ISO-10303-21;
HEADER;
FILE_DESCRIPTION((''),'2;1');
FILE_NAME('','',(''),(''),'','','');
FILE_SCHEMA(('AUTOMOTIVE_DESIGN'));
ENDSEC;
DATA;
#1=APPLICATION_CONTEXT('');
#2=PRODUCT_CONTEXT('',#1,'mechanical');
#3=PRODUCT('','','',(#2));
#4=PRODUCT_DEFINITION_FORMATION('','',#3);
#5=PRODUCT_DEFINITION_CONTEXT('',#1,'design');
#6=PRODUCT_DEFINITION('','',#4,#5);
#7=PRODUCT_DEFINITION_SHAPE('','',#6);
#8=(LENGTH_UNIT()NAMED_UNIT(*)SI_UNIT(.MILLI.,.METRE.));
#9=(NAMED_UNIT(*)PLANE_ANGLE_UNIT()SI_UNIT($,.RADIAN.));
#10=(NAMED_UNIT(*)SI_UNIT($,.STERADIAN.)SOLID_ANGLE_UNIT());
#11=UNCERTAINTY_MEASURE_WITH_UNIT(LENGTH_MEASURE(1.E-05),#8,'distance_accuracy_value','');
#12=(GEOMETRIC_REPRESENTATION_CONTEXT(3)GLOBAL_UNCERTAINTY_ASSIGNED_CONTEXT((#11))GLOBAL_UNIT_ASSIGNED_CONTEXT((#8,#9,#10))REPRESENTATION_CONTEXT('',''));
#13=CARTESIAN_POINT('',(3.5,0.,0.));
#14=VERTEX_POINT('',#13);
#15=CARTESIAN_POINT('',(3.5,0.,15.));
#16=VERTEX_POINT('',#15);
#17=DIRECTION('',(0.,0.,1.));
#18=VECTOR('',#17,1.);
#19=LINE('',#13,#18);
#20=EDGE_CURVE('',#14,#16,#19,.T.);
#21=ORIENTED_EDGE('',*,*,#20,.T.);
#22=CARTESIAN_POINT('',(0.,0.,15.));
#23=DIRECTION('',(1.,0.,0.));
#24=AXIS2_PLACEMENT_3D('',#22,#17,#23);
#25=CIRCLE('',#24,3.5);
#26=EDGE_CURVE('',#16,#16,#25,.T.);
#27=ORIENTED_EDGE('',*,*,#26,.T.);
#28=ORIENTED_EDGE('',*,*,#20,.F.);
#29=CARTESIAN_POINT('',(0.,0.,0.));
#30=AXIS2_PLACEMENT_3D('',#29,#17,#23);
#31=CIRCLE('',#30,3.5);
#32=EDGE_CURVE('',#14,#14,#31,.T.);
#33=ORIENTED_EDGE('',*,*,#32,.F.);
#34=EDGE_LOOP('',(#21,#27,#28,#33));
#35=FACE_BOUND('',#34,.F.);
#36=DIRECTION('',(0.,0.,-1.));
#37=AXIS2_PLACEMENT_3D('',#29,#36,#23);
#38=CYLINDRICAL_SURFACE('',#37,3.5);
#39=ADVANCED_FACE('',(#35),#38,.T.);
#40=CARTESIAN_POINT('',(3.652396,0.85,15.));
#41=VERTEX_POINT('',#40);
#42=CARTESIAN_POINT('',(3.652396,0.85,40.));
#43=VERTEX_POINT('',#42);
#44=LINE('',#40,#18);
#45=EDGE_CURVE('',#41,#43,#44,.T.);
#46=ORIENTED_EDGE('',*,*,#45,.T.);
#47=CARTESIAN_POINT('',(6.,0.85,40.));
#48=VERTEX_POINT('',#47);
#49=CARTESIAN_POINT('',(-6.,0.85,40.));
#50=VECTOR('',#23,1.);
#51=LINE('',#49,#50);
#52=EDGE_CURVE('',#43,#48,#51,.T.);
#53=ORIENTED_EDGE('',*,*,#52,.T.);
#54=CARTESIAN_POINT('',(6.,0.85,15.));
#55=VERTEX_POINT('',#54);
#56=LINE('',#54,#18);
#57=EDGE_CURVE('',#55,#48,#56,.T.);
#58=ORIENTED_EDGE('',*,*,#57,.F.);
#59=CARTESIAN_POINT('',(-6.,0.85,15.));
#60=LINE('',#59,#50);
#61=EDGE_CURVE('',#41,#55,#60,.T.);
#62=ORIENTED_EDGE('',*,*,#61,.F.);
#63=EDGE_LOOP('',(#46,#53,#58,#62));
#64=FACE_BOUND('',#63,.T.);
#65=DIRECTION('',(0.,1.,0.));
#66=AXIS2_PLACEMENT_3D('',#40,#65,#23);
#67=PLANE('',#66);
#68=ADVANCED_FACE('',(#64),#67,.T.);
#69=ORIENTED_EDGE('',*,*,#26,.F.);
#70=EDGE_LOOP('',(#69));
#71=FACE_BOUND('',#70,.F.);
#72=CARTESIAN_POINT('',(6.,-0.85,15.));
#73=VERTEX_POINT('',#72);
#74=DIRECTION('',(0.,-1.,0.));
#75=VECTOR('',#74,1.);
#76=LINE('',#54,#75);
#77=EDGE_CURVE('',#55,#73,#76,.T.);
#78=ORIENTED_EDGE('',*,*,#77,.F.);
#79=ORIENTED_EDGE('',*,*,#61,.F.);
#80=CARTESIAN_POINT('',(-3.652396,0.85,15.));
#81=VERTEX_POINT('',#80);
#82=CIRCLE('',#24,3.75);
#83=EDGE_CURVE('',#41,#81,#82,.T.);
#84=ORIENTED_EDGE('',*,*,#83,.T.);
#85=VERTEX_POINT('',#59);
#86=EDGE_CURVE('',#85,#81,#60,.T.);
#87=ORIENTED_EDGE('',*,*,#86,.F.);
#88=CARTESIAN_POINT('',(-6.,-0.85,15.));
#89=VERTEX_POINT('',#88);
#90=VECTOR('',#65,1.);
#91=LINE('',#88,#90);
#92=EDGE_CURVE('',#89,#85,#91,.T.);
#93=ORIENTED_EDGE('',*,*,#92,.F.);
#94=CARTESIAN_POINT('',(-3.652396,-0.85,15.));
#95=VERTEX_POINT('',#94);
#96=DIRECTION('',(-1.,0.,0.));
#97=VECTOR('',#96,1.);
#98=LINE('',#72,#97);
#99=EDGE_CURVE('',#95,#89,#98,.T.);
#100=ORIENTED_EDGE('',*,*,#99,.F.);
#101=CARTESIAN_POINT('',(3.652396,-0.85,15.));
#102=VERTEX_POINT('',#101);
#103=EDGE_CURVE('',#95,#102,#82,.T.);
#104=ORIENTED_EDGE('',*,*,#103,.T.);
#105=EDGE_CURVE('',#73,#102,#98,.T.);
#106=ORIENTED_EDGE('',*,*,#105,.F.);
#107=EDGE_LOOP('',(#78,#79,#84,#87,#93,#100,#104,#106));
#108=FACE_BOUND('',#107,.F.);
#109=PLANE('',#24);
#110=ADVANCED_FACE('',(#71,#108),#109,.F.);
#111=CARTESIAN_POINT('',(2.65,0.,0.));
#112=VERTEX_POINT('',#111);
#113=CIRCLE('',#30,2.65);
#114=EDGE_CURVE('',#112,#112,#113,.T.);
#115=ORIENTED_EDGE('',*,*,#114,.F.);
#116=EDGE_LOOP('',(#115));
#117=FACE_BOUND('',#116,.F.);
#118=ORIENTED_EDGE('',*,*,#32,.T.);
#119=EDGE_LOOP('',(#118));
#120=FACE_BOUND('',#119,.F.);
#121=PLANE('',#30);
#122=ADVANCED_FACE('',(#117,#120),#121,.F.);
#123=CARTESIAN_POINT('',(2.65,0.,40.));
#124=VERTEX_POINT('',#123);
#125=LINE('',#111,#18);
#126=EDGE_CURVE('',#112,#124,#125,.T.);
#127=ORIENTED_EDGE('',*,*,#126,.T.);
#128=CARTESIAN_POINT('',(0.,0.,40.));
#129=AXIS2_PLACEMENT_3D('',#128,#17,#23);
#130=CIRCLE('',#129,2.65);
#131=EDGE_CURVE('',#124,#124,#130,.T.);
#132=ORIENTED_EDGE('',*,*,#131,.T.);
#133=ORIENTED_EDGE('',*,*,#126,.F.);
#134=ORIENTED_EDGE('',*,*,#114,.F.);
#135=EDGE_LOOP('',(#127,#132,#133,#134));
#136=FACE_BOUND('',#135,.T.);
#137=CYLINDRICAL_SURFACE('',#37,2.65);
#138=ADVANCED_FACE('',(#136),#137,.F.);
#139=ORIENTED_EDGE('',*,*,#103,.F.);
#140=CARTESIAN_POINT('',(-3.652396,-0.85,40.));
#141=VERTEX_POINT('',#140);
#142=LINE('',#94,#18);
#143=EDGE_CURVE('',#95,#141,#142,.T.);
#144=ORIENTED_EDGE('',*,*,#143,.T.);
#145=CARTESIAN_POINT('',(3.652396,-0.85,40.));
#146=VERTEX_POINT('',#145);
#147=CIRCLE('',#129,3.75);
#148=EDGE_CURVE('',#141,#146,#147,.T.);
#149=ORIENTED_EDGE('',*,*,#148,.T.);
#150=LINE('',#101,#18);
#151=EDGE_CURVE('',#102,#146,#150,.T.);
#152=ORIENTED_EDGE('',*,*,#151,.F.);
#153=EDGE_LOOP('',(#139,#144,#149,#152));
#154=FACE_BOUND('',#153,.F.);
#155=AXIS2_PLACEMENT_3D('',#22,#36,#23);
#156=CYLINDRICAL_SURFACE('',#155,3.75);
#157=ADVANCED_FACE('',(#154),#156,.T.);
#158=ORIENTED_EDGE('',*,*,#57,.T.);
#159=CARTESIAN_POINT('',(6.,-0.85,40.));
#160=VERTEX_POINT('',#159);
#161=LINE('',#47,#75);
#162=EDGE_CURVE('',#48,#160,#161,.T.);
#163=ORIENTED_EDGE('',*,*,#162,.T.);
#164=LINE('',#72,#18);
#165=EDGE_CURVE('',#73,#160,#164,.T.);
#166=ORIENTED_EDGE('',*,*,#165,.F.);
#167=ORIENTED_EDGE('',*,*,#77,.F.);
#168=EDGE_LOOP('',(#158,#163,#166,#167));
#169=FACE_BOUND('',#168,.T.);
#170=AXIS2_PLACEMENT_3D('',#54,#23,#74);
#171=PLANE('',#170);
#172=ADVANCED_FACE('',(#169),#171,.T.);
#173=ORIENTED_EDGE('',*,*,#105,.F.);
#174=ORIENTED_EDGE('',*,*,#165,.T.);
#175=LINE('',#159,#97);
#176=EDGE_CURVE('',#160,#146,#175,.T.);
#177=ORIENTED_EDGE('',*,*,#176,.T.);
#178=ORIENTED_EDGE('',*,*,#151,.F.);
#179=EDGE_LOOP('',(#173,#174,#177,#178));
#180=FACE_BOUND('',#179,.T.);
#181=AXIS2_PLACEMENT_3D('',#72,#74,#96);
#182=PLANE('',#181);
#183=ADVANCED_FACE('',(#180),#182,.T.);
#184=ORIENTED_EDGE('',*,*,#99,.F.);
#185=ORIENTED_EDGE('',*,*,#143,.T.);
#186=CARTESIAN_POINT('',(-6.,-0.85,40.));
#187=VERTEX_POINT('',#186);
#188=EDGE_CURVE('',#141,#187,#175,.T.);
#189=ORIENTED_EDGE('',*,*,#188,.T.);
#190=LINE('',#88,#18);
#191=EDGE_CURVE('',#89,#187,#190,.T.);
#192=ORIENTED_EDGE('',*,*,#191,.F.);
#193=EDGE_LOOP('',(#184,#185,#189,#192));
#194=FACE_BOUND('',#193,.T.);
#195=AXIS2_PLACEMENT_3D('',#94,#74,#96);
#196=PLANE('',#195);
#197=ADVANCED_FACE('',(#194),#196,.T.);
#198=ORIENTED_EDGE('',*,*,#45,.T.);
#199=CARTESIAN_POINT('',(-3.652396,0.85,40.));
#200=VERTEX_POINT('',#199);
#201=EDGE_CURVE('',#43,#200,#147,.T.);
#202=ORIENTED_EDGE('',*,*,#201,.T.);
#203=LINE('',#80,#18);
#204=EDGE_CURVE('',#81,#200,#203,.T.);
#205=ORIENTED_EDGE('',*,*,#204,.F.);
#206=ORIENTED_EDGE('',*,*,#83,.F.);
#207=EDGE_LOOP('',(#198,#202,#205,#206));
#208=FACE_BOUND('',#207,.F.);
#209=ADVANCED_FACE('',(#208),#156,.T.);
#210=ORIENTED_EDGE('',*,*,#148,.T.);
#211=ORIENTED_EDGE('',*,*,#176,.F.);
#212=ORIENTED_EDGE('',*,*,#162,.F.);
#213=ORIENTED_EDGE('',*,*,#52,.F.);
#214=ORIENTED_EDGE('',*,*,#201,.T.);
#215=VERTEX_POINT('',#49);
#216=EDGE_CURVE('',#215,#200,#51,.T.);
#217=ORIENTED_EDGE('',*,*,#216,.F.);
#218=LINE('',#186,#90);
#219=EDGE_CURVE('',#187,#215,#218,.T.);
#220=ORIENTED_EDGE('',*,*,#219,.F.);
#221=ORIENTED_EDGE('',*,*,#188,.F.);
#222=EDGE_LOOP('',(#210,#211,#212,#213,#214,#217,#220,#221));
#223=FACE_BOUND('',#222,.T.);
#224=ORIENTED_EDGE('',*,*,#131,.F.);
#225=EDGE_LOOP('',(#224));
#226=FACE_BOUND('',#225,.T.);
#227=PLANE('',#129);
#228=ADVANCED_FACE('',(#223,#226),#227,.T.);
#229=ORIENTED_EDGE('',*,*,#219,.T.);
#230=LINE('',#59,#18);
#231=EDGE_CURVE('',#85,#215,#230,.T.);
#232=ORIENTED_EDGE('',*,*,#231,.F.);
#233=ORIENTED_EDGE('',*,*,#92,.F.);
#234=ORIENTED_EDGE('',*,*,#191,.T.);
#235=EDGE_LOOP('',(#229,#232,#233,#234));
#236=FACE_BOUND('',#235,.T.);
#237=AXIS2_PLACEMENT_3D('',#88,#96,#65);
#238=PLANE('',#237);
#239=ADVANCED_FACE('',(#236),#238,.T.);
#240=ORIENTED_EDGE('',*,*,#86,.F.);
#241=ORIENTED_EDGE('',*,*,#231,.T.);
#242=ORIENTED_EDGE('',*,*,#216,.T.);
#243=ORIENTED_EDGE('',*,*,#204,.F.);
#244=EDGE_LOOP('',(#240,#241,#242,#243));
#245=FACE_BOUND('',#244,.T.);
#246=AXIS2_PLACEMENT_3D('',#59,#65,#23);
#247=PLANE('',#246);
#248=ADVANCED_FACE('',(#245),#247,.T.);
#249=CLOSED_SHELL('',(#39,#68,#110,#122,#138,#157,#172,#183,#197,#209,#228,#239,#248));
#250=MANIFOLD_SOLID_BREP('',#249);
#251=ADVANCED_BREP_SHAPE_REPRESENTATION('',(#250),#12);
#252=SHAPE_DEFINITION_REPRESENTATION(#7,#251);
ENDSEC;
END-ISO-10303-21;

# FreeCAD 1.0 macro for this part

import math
import FreeCAD as App
import Part
import Sketcher
from FreeCAD import Vector

doc = App.newDocument("Part")
body = doc.addObject("PartDesign::Body", "Body")

# Sketch on XY plane
sketch1 = body.newObject("Sketcher::SketchObject", "Sketch")
sketch1.AttachmentSupport = (doc.getObject("XY_Plane"), [""])
sketch1.MapMode = "FlatFace"
sketch1.addGeometry([
    Part.Circle(Vector(0, 0, 0), Vector(0, 0, 1), 3.5),
    Part.Circle(Vector(0, 0, 0), Vector(0, 0, 1), 2.6),
], False)
sketch1.addConstraint([
    Sketcher.Constraint("Coincident", 0, 3, -1, 1),
    Sketcher.Constraint("Coincident", 1, 3, -1, 1),
    Sketcher.Constraint("Diameter", 0, 7.0),
    Sketcher.Constraint("Diameter", 1, 5.3),
])
pad1 = body.newObject("PartDesign::Pad", "Pad")
pad1.Profile = sketch1
pad1.Length = 15

# Sketch on XY plane
sketch2 = body.newObject("Sketcher::SketchObject", "Sketch001")
sketch2.AttachmentSupport = (doc.getObject("XY_Plane"), [""])
sketch2.MapMode = "FlatFace"
sketch2.AttachmentOffset = App.Placement(Vector(0, 0, 15), App.Rotation())
sketch2.addGeometry([
    Part.ArcOfCircle(Part.Circle(Vector(0, 0, 0), Vector(0, 0, 1), 3.8), math.radians(13), math.radians(167)),  # 0
    Part.LineSegment(Vector(-3.7, 0.8, 0), Vector(-6, 0.8, 0)),  # 1
    Part.LineSegment(Vector(-6, 0.8, 0), Vector(-6, -0.8, 0)),  # 2
    Part.LineSegment(Vector(-6, -0.8, 0), Vector(-3.7, -0.8, 0)),  # 3
    Part.ArcOfCircle(Part.Circle(Vector(0, 0, 0), Vector(0, 0, 1), 3.8), math.radians(-167), math.radians(-13)),  # 4
    Part.LineSegment(Vector(3.7, -0.8, 0), Vector(6, -0.8, 0)),  # 5
    Part.LineSegment(Vector(6, -0.8, 0), Vector(6, 0.8, 0)),  # 6
    Part.LineSegment(Vector(6, 0.8, 0), Vector(3.7, 0.8, 0)),  # 7
    Part.Circle(Vector(0, 0, 0), Vector(0, 0, 1), 2.6),  # 8
], False)
sketch2.addConstraint([
    Sketcher.Constraint("Coincident", 0, 2, 1, 1),
    Sketcher.Constraint("Coincident", 1, 2, 2, 1),
    Sketcher.Constraint("Coincident", 2, 2, 3, 1),
    Sketcher.Constraint("Coincident", 3, 2, 4, 1),
    Sketcher.Constraint("Coincident", 4, 2, 5, 1),
    Sketcher.Constraint("Coincident", 5, 2, 6, 1),
    Sketcher.Constraint("Coincident", 6, 2, 7, 1),
    Sketcher.Constraint("Coincident", 7, 2, 0, 1),
    Sketcher.Constraint("Horizontal", 1),
    Sketcher.Constraint("Vertical", 2),
    Sketcher.Constraint("Horizontal", 3),
    Sketcher.Constraint("Horizontal", 5),
    Sketcher.Constraint("Vertical", 6),
    Sketcher.Constraint("Horizontal", 7),
    Sketcher.Constraint("Coincident", 0, 3, -1, 1),
    Sketcher.Constraint("Coincident", 4, 3, -1, 1),
    Sketcher.Constraint("Coincident", 8, 3, -1, 1),
    Sketcher.Constraint("Equal", 0, 4),
    Sketcher.Constraint("Symmetric", 1, 2, 5, 2, -1, 1),
    Sketcher.Constraint("Horizontal", 3, 2, 4, 2),
    Sketcher.Constraint("Horizontal", 1, 2, 6, 2),
    Sketcher.Constraint("Radius", 0, 3.75),
    Sketcher.Constraint("DistanceY", 2, 2, 2, 1, 1.7),
    Sketcher.Constraint("Diameter", 8, 5.3),
    Sketcher.Constraint("DistanceX", 1, 2, -1, 1, 6.0),
])
pad2 = body.newObject("PartDesign::Pad", "Pad001")
pad2.Profile = sketch2
pad2.Length = 25

doc.recompute()
